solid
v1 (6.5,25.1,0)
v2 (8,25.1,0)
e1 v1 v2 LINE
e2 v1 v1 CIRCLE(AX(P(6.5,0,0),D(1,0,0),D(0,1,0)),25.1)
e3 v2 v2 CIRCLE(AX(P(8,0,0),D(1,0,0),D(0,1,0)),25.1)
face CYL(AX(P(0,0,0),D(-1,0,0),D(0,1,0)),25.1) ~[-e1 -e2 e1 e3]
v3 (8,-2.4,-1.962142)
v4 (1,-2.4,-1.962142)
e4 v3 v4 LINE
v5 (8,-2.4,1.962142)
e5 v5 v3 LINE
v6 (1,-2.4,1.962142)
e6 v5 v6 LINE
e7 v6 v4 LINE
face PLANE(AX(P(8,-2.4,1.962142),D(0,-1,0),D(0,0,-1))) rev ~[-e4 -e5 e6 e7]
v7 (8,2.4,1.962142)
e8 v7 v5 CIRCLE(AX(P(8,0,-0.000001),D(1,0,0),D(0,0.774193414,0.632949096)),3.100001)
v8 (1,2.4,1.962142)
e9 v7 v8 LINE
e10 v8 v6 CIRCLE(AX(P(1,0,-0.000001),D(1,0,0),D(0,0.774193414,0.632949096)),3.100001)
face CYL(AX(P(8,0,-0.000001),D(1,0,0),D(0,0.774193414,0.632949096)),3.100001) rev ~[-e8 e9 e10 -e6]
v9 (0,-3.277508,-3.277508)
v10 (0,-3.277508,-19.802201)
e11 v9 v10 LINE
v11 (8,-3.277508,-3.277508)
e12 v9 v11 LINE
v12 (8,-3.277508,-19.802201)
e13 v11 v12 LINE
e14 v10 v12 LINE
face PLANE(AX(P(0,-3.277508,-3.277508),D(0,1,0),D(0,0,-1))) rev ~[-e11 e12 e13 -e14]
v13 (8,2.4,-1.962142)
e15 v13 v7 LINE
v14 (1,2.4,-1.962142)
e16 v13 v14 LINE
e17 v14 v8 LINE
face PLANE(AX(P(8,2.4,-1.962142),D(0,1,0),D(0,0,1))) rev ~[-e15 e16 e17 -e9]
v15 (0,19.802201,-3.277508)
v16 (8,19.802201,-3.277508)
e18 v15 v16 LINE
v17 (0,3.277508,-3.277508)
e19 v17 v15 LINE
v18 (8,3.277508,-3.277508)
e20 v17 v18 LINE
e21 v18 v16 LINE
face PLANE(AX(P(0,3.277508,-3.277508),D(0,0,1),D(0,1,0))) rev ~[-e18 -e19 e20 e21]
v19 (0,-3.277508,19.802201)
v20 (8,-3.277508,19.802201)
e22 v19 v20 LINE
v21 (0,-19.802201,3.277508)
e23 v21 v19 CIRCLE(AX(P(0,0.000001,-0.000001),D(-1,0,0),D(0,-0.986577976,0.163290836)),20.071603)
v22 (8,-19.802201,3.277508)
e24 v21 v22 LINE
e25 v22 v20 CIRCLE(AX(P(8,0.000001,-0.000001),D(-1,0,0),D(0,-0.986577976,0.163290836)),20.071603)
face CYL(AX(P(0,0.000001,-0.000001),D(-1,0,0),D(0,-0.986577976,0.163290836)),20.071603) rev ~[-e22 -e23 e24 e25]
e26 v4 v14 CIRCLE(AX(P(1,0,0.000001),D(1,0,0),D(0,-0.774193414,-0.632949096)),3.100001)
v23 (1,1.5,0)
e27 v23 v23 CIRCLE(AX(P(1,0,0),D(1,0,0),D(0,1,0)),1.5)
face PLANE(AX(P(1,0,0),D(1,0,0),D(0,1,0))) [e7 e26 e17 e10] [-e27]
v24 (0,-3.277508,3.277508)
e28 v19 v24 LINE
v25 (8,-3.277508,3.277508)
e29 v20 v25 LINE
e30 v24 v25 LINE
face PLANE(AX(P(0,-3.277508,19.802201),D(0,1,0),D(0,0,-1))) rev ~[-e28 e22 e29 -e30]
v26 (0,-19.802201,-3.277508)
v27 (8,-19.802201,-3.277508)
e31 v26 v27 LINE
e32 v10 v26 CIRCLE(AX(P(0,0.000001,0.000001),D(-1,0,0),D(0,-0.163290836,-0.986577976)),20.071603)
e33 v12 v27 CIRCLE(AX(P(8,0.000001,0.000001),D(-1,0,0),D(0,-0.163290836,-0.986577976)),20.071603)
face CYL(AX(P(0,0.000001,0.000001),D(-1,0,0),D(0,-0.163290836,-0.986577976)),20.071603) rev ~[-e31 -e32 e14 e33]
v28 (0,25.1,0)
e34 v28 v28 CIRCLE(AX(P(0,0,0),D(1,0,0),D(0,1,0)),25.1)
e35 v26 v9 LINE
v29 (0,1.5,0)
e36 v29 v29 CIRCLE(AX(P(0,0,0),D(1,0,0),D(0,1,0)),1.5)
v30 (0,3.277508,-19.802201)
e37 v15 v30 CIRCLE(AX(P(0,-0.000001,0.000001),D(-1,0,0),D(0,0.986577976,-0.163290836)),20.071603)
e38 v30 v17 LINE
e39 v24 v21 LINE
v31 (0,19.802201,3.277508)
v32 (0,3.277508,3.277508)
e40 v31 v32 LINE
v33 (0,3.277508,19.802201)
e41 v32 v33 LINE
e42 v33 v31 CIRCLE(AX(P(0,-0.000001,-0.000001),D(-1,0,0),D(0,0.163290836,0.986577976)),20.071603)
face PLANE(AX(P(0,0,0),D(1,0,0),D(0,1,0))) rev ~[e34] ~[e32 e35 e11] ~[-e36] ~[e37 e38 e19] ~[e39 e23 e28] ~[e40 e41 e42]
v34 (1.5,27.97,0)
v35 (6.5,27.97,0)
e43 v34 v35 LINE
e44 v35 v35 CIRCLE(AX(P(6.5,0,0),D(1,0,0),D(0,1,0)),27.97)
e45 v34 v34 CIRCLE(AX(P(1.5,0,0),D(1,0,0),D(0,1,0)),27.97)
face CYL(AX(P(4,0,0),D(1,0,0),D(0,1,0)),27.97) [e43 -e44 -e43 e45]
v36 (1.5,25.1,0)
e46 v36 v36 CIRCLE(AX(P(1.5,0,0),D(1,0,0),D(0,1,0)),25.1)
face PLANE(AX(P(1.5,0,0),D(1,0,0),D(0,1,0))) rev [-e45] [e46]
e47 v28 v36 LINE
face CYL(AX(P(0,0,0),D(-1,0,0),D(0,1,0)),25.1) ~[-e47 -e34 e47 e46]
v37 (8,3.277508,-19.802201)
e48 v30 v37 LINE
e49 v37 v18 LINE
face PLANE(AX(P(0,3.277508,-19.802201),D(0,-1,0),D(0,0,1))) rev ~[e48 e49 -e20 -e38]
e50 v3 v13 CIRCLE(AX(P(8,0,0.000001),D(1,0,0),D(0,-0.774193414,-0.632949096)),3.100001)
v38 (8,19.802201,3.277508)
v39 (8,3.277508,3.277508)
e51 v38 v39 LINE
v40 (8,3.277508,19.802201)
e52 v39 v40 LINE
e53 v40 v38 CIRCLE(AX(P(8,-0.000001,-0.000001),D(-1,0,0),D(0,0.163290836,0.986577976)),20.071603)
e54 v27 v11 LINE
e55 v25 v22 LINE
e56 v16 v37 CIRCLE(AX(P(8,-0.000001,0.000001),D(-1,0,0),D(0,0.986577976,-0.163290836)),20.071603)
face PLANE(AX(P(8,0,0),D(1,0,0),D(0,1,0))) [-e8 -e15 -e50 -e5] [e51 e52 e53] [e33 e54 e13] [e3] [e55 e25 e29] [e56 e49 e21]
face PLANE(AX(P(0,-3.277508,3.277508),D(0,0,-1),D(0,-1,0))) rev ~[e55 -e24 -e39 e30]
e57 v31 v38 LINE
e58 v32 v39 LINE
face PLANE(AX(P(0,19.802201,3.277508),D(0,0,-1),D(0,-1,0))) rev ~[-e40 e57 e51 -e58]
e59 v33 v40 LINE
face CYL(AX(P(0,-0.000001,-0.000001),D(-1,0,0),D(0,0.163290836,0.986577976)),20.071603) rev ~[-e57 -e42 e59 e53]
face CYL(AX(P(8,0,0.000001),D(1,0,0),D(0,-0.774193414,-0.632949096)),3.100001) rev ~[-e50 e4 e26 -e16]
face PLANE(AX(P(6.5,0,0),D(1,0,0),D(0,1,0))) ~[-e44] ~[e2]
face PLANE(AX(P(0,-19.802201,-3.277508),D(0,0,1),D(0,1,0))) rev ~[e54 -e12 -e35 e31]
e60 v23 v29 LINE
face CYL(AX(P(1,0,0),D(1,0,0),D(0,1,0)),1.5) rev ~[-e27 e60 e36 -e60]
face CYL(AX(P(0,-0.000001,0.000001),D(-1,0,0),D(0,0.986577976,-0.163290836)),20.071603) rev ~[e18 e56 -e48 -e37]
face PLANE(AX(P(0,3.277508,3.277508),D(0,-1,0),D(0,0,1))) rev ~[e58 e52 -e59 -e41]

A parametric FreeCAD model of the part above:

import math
import FreeCAD as App
import Part
import Sketcher
Q = App.Units.Quantity

doc = App.newDocument("Part")
body = doc.addObject("PartDesign::Body", "Body")

sketch1 = doc.addObject("Sketcher::SketchObject", "Sketch")
body.addObject(sketch1)
sketch1.AttachmentSupport = (doc.YZ_Plane, [""])
sketch1.MapMode = "FlatFace"
sketch1.addGeometry(Part.Circle(App.Vector(0, 0, 0), App.Vector(0, 0, 1), 25), False)
sketch1.addGeometry(Part.LineSegment(App.Vector(-3, -3, 0), App.Vector(-3, -20, 0)), False)
sketch1.addGeometry(Part.ArcOfCircle(Part.Circle(App.Vector(0, 0, 0), App.Vector(0, 0, 1), 20), math.radians(-171), math.radians(-99)), False)
sketch1.addGeometry(Part.LineSegment(App.Vector(-20, -3, 0), App.Vector(-3, -3, 0)), False)
sketch1.addGeometry(Part.LineSegment(App.Vector(3, -3, 0), App.Vector(20, -3, 0)), False)
sketch1.addGeometry(Part.ArcOfCircle(Part.Circle(App.Vector(0, 0, 0), App.Vector(0, 0, 1), 20), math.radians(-81), math.radians(-9)), False)
sketch1.addGeometry(Part.LineSegment(App.Vector(3, -20, 0), App.Vector(3, -3, 0)), False)
sketch1.addGeometry(Part.LineSegment(App.Vector(-3, 3, 0), App.Vector(-20, 3, 0)), False)
sketch1.addGeometry(Part.ArcOfCircle(Part.Circle(App.Vector(0, 0, 0), App.Vector(0, 0, 1), 20), math.radians(99), math.radians(171)), False)
sketch1.addGeometry(Part.LineSegment(App.Vector(-3, 20, 0), App.Vector(-3, 3, 0)), False)
sketch1.addGeometry(Part.LineSegment(App.Vector(20, 3, 0), App.Vector(3, 3, 0)), False)
sketch1.addGeometry(Part.LineSegment(App.Vector(3, 3, 0), App.Vector(3, 20, 0)), False)
sketch1.addGeometry(Part.ArcOfCircle(Part.Circle(App.Vector(0, 0, 0), App.Vector(0, 0, 1), 20), math.radians(9), math.radians(81)), False)
sketch1.addConstraint(Sketcher.Constraint("Coincident", 1, 2, 2, 2))
sketch1.addConstraint(Sketcher.Constraint("Coincident", 2, 1, 3, 1))
sketch1.addConstraint(Sketcher.Constraint("Coincident", 3, 2, 1, 1))
sketch1.addConstraint(Sketcher.Constraint("Coincident", 4, 2, 5, 2))
sketch1.addConstraint(Sketcher.Constraint("Coincident", 5, 1, 6, 1))
sketch1.addConstraint(Sketcher.Constraint("Coincident", 6, 2, 4, 1))
sketch1.addConstraint(Sketcher.Constraint("Coincident", 7, 2, 8, 2))
sketch1.addConstraint(Sketcher.Constraint("Coincident", 8, 1, 9, 1))
sketch1.addConstraint(Sketcher.Constraint("Coincident", 9, 2, 7, 1))
sketch1.addConstraint(Sketcher.Constraint("Coincident", 10, 2, 11, 1))
sketch1.addConstraint(Sketcher.Constraint("Coincident", 11, 2, 12, 2))
sketch1.addConstraint(Sketcher.Constraint("Coincident", 12, 1, 10, 1))
sketch1.addConstraint(Sketcher.Constraint("Vertical", 1))
sketch1.addConstraint(Sketcher.Constraint("Horizontal", 3))
sketch1.addConstraint(Sketcher.Constraint("Horizontal", 4))
sketch1.addConstraint(Sketcher.Constraint("Vertical", 6))
sketch1.addConstraint(Sketcher.Constraint("Horizontal", 7))
sketch1.addConstraint(Sketcher.Constraint("Vertical", 9))
sketch1.addConstraint(Sketcher.Constraint("Horizontal", 10))
sketch1.addConstraint(Sketcher.Constraint("Vertical", 11))
sketch1.addConstraint(Sketcher.Constraint("Coincident", 0, 3, -1, 1))
sketch1.addConstraint(Sketcher.Constraint("Coincident", 2, 3, -1, 1))
sketch1.addConstraint(Sketcher.Constraint("Coincident", 5, 3, -1, 1))
sketch1.addConstraint(Sketcher.Constraint("Coincident", 8, 3, -1, 1))
sketch1.addConstraint(Sketcher.Constraint("Coincident", 12, 3, -1, 1))
sketch1.addConstraint(Sketcher.Constraint("Equal", 2, 5))
sketch1.addConstraint(Sketcher.Constraint("Equal", 5, 8))
sketch1.addConstraint(Sketcher.Constraint("Equal", 8, 12))
sketch1.addConstraint(Sketcher.Constraint("Symmetric", 6, 2, 9, 2, -1, 1))
sketch1.addConstraint(Sketcher.Constraint("Symmetric", 3, 2, 10, 2, -1, 1))
sketch1.addConstraint(Sketcher.Constraint("Symmetric", 3, 2, 6, 2, -2))
sketch1.addConstraint(Sketcher.Constraint("Equal", 10, 1))
sketch1.addConstraint(Sketcher.Constraint("Diameter", 0, Q("50.2 mm")))
sketch1.addConstraint(Sketcher.Constraint("Radius", 2, Q("20.071603 mm")))
sketch1.addConstraint(Sketcher.Constraint("DistanceY", 1, 2, -1, 1, Q("19.802201 mm")))
pad1 = doc.addObject("PartDesign::Pad", "Pad")
body.addObject(pad1)
pad1.Profile = sketch1
pad1.Length = 8

sketch2 = doc.addObject("Sketcher::SketchObject", "Sketch001")
body.addObject(sketch2)
sketch2.AttachmentSupport = (doc.YZ_Plane, [""])
sketch2.MapMode = "FlatFace"
sketch2.AttachmentOffset = App.Placement(App.Vector(0, 0, 8), App.Rotation())
sketch2.addGeometry(Part.LineSegment(App.Vector(-2.4, 2, 0), App.Vector(-2.4, -2, 0)), False)
sketch2.addGeometry(Part.ArcOfCircle(Part.Circle(App.Vector(0, 0, 0), App.Vector(0, 0, 1), 3.1), math.radians(-141), math.radians(-39)), False)
sketch2.addGeometry(Part.LineSegment(App.Vector(2.4, -2, 0), App.Vector(2.4, 2, 0)), False)
sketch2.addGeometry(Part.ArcOfCircle(Part.Circle(App.Vector(0, 0, 0), App.Vector(0, 0, 1), 3.1), math.radians(39), math.radians(141)), False)
sketch2.addConstraint(Sketcher.Constraint("Coincident", 0, 2, 1, 1))
sketch2.addConstraint(Sketcher.Constraint("Coincident", 1, 2, 2, 1))
sketch2.addConstraint(Sketcher.Constraint("Coincident", 2, 2, 3, 1))
sketch2.addConstraint(Sketcher.Constraint("Coincident", 3, 2, 0, 1))
sketch2.addConstraint(Sketcher.Constraint("Vertical", 0))
sketch2.addConstraint(Sketcher.Constraint("Vertical", 2))
sketch2.addConstraint(Sketcher.Constraint("Coincident", 1, 3, -1, 1))
sketch2.addConstraint(Sketcher.Constraint("Coincident", 3, 3, -1, 1))
sketch2.addConstraint(Sketcher.Constraint("Equal", 1, 3))
sketch2.addConstraint(Sketcher.Constraint("Horizontal", 0, 2, 1, 2))
sketch2.addConstraint(Sketcher.Constraint("Radius", 1, Q("3.100001 mm")))
sketch2.addConstraint(Sketcher.Constraint("DistanceX", 0, 2, -1, 1, Q("2.4 mm")))
pocket1 = doc.addObject("PartDesign::Pocket", "Pocket")
body.addObject(pocket1)
pocket1.Profile = sketch2
pocket1.Length = 7

sketch3 = doc.addObject("Sketcher::SketchObject", "Sketch002")
body.addObject(sketch3)
sketch3.AttachmentSupport = (doc.YZ_Plane, [""])
sketch3.MapMode = "FlatFace"
sketch3.AttachmentOffset = App.Placement(App.Vector(0, 0, 1), App.Rotation())
sketch3.addGeometry(Part.Circle(App.Vector(0, 0, 0), App.Vector(0, 0, 1), 1.5), False)
sketch3.addConstraint(Sketcher.Constraint("Coincident", 0, 3, -1, 1))
sketch3.addConstraint(Sketcher.Constraint("Diameter", 0, Q("3 mm")))
pocket2 = doc.addObject("PartDesign::Pocket", "Pocket001")
body.addObject(pocket2)
pocket2.Profile = sketch3
pocket2.Length = 25

sketch4 = doc.addObject("Sketcher::SketchObject", "Sketch003")
body.addObject(sketch4)
sketch4.AttachmentSupport = (doc.XY_Plane, [""])
sketch4.MapMode = "FlatFace"
sketch4.addGeometry(Part.LineSegment(App.Vector(1.5, 28, 0), App.Vector(1.5, 25.1, 0)), False)
sketch4.addGeometry(Part.LineSegment(App.Vector(1.5, 25.1, 0), App.Vector(6.5, 25.1, 0)), False)
sketch4.addGeometry(Part.LineSegment(App.Vector(6.5, 25.1, 0), App.Vector(6.5, 28, 0)), False)
sketch4.addGeometry(Part.LineSegment(App.Vector(6.5, 28, 0), App.Vector(1.5, 28, 0)), False)
sketch4.addConstraint(Sketcher.Constraint("Coincident", 0, 2, 1, 1))
sketch4.addConstraint(Sketcher.Constraint("Coincident", 1, 2, 2, 1))
sketch4.addConstraint(Sketcher.Constraint("Coincident", 2, 2, 3, 1))
sketch4.addConstraint(Sketcher.Constraint("Coincident", 3, 2, 0, 1))
sketch4.addConstraint(Sketcher.Constraint("Vertical", 0))
sketch4.addConstraint(Sketcher.Constraint("Horizontal", 1))
sketch4.addConstraint(Sketcher.Constraint("Vertical", 2))
sketch4.addConstraint(Sketcher.Constraint("Horizontal", 3))
sketch4.addConstraint(Sketcher.Constraint("DistanceX", 1, 1, 1, 2, Q("5 mm")))
sketch4.addConstraint(Sketcher.Constraint("DistanceY", 0, 2, 0, 1, Q("2.87 mm")))
sketch4.addConstraint(Sketcher.Constraint("DistanceX", -1, 1, 0, 2, Q("1.5 mm")))
sketch4.addConstraint(Sketcher.Constraint("DistanceY", -1, 1, 0, 2, Q("25.1 mm")))
revolution = doc.addObject("PartDesign::Revolution", "Revolution")
body.addObject(revolution)
revolution.Profile = sketch4
revolution.ReferenceAxis = (sketch4, ["H_Axis"])
revolution.Angle = 360

doc.recompute()
